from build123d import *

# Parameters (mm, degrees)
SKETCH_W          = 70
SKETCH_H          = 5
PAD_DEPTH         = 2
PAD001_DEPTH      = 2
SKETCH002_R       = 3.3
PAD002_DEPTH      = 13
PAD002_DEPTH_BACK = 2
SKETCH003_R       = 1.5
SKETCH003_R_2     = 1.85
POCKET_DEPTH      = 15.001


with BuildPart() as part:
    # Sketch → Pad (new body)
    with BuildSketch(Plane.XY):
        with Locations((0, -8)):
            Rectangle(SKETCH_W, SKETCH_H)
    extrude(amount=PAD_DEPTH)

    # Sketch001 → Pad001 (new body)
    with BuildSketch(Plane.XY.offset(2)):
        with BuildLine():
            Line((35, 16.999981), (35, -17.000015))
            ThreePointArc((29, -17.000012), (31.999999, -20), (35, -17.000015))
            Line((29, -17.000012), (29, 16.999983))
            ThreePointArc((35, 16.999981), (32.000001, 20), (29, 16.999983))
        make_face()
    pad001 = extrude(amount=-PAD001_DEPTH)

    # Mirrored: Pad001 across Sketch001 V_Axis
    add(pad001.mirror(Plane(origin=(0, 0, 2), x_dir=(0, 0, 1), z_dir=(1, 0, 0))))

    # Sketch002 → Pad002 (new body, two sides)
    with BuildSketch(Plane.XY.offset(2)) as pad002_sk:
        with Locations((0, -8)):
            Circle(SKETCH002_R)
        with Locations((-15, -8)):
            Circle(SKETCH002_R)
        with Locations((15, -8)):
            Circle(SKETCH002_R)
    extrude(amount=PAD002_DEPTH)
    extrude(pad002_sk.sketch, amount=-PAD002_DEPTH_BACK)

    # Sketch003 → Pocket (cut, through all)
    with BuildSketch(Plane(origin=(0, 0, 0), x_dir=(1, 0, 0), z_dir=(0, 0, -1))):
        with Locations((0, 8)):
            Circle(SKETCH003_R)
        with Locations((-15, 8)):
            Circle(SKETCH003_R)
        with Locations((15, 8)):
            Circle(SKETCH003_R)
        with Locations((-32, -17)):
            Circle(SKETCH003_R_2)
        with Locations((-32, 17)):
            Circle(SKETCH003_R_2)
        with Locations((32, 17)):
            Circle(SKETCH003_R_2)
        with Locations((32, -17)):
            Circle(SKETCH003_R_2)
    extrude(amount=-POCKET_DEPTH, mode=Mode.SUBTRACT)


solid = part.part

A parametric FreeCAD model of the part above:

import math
import FreeCAD as App
import Part
import Sketcher

V = App.Vector


def add_polygon(sketch, points):
    """Adds a closed chain of lines whose ends are joined by coincident constraints."""
    first, n = sketch.GeometryCount, len(points)
    for a, b in zip(points, points[1:] + points[:1]):
        sketch.addGeometry(Part.LineSegment(App.Vector(*a, 0), App.Vector(*b, 0)), False)
    for i in range(n):
        sketch.addConstraint(Sketcher.Constraint("Coincident", first + i, 2, first + (i + 1) % n, 1))

doc = App.newDocument("Part")
body = doc.addObject("PartDesign::Body", "Body")

sketch1 = body.newObject("Sketcher::SketchObject", "Sketch")
sketch1.AttachmentSupport = (doc.getObject("XY_Plane"), [""])
sketch1.MapMode = "FlatFace"
add_polygon(sketch1, [(-35, -6), (-35, -10), (35, -10), (35, -6)])
sketch1.addConstraint(Sketcher.Constraint("Vertical", 0))
sketch1.addConstraint(Sketcher.Constraint("Horizontal", 1))
sketch1.addConstraint(Sketcher.Constraint("Vertical", 2))
sketch1.addConstraint(Sketcher.Constraint("Horizontal", 3))
sketch1.addConstraint(Sketcher.Constraint("DistanceX", 1, 1, 1, 2, 70.0))
sketch1.addConstraint(Sketcher.Constraint("DistanceY", 0, 2, 0, 1, 5.0))
sketch1.addConstraint(Sketcher.Constraint("DistanceX", 0, 2, -1, 1, 35.0))
sketch1.addConstraint(Sketcher.Constraint("DistanceY", 0, 2, -1, 1, 10.5))
pad1 = body.newObject("PartDesign::Pad", "Pad")
pad1.Profile = sketch1
pad1.Length = 2

sketch2 = body.newObject("Sketcher::SketchObject", "Sketch001")
sketch2.AttachmentSupport = (doc.getObject("XY_Plane"), [""])
sketch2.MapMode = "FlatFace"
sketch2.AttachmentOffset = App.Placement(V(0, 0, 2), App.Rotation())
sketch2.addGeometry(Part.LineSegment(V(35, -17, 0), V(35, 17, 0)), False)
sketch2.addGeometry(Part.ArcOfCircle(Part.Circle(V(32, 17, 0), V(0, 0, 1), 3), math.radians(0), math.radians(180)), False)
sketch2.addGeometry(Part.LineSegment(V(29, 17, 0), V(29, -17, 0)), False)
sketch2.addGeometry(Part.ArcOfCircle(Part.Circle(V(32, -17, 0), V(0, 0, 1), 3), math.radians(-180), math.radians(0)), False)
sketch2.addConstraint(Sketcher.Constraint("Coincident", 0, 2, 1, 1))
sketch2.addConstraint(Sketcher.Constraint("Coincident", 1, 2, 2, 1))
sketch2.addConstraint(Sketcher.Constraint("Coincident", 2, 2, 3, 1))
sketch2.addConstraint(Sketcher.Constraint("Coincident", 3, 2, 0, 1))
sketch2.addConstraint(Sketcher.Constraint("Vertical", 0))
sketch2.addConstraint(Sketcher.Constraint("Vertical", 2))
sketch2.addConstraint(Sketcher.Constraint("Equal", 0, 2))
sketch2.addConstraint(Sketcher.Constraint("Radius", 1, 3.0))
sketch2.addConstraint(Sketcher.Constraint("DistanceX", -1, 1, 1, 3, 32.0))
sketch2.addConstraint(Sketcher.Constraint("DistanceY", -1, 1, 1, 3, 17.0))
sketch2.addConstraint(Sketcher.Constraint("DistanceY", 3, 3, -1, 1, 17.0))
sketch2.addConstraint(Sketcher.Constraint("DistanceY", 3, 2, 1, 2, 33.999998))
sketch2.addConstraint(Sketcher.Constraint("DistanceY", 0, 1, 0, 2, 33.999996))
sketch2.addConstraint(Sketcher.Constraint("DistanceY", -1, 1, 0, 2, 16.999981))
pad2 = body.newObject("PartDesign::Pad", "Pad001")
pad2.Profile = sketch2
pad2.Length = 2
pad2.Reversed = True
doc.recompute()

mirrored = body.newObject("PartDesign::Mirrored", "Mirrored")
mirrored.Originals = [pad2]
mirrored.MirrorPlane = (doc.getObject("YZ_Plane"), [""])
body.Tip = mirrored

sketch3 = body.newObject("Sketcher::SketchObject", "Sketch002")
sketch3.AttachmentSupport = (doc.getObject("XY_Plane"), [""])
sketch3.MapMode = "FlatFace"
sketch3.AttachmentOffset = App.Placement(V(0, 0, 2), App.Rotation())
sketch3.addGeometry(Part.Circle(V(0, -8, 0), V(0, 0, 1), 3.3), False)
sketch3.addGeometry(Part.Circle(V(-15, -8, 0), V(0, 0, 1), 3.3), False)
sketch3.addGeometry(Part.Circle(V(15, -8, 0), V(0, 0, 1), 3.3), False)
sketch3.addConstraint(Sketcher.Constraint("Equal", 0, 1))
sketch3.addConstraint(Sketcher.Constraint("Equal", 1, 2))
sketch3.addConstraint(Sketcher.Constraint("Symmetric", 1, 3, 2, 3, -2))
sketch3.addConstraint(Sketcher.Constraint("PointOnObject", 0, 3, -2))
sketch3.addConstraint(Sketcher.Constraint("Horizontal", 0, 3, 1, 3))
sketch3.addConstraint(Sketcher.Constraint("Diameter", 0, 6.6))
sketch3.addConstraint(Sketcher.Constraint("DistanceY", 0, 3, -1, 1, 8.0))
sketch3.addConstraint(Sketcher.Constraint("DistanceX", 1, 3, -1, 1, 15.0))
pad3 = body.newObject("PartDesign::Pad", "Pad002")
pad3.Profile = sketch3
pad3.Type = "TwoLengths"
pad3.Length = 13
pad3.Length2 = 2

sketch4 = body.newObject("Sketcher::SketchObject", "Sketch003")
sketch4.AttachmentSupport = (doc.getObject("XY_Plane"), [""])
sketch4.MapMode = "FlatFace"
sketch4.addGeometry(Part.Circle(V(0, -8, 0), V(0, 0, 1), 1.5), False)
sketch4.addGeometry(Part.Circle(V(-15, -8, 0), V(0, 0, 1), 1.5), False)
sketch4.addGeometry(Part.Circle(V(15, -8, 0), V(0, 0, 1), 1.5), False)
sketch4.addGeometry(Part.Circle(V(-32, 17, 0), V(0, 0, 1), 1.9), False)
sketch4.addGeometry(Part.Circle(V(-32, -17, 0), V(0, 0, 1), 1.9), False)
sketch4.addGeometry(Part.Circle(V(32, -17, 0), V(0, 0, 1), 1.9), False)
sketch4.addGeometry(Part.Circle(V(32, 17, 0), V(0, 0, 1), 1.9), False)
sketch4.addConstraint(Sketcher.Constraint("Equal", 0, 1))
sketch4.addConstraint(Sketcher.Constraint("Equal", 1, 2))
sketch4.addConstraint(Sketcher.Constraint("Equal", 3, 4))
sketch4.addConstraint(Sketcher.Constraint("Equal", 4, 5))
sketch4.addConstraint(Sketcher.Constraint("Equal", 5, 6))
sketch4.addConstraint(Sketcher.Constraint("Symmetric", 3, 3, 5, 3, -1, 1))
sketch4.addConstraint(Sketcher.Constraint("Symmetric", 4, 3, 6, 3, -1, 1))
sketch4.addConstraint(Sketcher.Constraint("Symmetric", 1, 3, 2, 3, -2))
sketch4.addConstraint(Sketcher.Constraint("Symmetric", 4, 3, 5, 3, -2))
sketch4.addConstraint(Sketcher.Constraint("PointOnObject", 0, 3, -2))
sketch4.addConstraint(Sketcher.Constraint("Horizontal", 0, 3, 1, 3))
sketch4.addConstraint(Sketcher.Constraint("Diameter", 0, 3.0))
sketch4.addConstraint(Sketcher.Constraint("Diameter", 3, 3.7))
sketch4.addConstraint(Sketcher.Constraint("DistanceY", 0, 3, -1, 1, 8.0))
sketch4.addConstraint(Sketcher.Constraint("DistanceX", 1, 3, -1, 1, 15.0))
sketch4.addConstraint(Sketcher.Constraint("DistanceX", 3, 3, -1, 1, 32.0))
sketch4.addConstraint(Sketcher.Constraint("DistanceY", -1, 1, 3, 3, 17.0))
pocket1 = body.newObject("PartDesign::Pocket", "Pocket")
pocket1.Profile = sketch4
pocket1.Type = "ThroughAll"
pocket1.Reversed = True

doc.recompute()
